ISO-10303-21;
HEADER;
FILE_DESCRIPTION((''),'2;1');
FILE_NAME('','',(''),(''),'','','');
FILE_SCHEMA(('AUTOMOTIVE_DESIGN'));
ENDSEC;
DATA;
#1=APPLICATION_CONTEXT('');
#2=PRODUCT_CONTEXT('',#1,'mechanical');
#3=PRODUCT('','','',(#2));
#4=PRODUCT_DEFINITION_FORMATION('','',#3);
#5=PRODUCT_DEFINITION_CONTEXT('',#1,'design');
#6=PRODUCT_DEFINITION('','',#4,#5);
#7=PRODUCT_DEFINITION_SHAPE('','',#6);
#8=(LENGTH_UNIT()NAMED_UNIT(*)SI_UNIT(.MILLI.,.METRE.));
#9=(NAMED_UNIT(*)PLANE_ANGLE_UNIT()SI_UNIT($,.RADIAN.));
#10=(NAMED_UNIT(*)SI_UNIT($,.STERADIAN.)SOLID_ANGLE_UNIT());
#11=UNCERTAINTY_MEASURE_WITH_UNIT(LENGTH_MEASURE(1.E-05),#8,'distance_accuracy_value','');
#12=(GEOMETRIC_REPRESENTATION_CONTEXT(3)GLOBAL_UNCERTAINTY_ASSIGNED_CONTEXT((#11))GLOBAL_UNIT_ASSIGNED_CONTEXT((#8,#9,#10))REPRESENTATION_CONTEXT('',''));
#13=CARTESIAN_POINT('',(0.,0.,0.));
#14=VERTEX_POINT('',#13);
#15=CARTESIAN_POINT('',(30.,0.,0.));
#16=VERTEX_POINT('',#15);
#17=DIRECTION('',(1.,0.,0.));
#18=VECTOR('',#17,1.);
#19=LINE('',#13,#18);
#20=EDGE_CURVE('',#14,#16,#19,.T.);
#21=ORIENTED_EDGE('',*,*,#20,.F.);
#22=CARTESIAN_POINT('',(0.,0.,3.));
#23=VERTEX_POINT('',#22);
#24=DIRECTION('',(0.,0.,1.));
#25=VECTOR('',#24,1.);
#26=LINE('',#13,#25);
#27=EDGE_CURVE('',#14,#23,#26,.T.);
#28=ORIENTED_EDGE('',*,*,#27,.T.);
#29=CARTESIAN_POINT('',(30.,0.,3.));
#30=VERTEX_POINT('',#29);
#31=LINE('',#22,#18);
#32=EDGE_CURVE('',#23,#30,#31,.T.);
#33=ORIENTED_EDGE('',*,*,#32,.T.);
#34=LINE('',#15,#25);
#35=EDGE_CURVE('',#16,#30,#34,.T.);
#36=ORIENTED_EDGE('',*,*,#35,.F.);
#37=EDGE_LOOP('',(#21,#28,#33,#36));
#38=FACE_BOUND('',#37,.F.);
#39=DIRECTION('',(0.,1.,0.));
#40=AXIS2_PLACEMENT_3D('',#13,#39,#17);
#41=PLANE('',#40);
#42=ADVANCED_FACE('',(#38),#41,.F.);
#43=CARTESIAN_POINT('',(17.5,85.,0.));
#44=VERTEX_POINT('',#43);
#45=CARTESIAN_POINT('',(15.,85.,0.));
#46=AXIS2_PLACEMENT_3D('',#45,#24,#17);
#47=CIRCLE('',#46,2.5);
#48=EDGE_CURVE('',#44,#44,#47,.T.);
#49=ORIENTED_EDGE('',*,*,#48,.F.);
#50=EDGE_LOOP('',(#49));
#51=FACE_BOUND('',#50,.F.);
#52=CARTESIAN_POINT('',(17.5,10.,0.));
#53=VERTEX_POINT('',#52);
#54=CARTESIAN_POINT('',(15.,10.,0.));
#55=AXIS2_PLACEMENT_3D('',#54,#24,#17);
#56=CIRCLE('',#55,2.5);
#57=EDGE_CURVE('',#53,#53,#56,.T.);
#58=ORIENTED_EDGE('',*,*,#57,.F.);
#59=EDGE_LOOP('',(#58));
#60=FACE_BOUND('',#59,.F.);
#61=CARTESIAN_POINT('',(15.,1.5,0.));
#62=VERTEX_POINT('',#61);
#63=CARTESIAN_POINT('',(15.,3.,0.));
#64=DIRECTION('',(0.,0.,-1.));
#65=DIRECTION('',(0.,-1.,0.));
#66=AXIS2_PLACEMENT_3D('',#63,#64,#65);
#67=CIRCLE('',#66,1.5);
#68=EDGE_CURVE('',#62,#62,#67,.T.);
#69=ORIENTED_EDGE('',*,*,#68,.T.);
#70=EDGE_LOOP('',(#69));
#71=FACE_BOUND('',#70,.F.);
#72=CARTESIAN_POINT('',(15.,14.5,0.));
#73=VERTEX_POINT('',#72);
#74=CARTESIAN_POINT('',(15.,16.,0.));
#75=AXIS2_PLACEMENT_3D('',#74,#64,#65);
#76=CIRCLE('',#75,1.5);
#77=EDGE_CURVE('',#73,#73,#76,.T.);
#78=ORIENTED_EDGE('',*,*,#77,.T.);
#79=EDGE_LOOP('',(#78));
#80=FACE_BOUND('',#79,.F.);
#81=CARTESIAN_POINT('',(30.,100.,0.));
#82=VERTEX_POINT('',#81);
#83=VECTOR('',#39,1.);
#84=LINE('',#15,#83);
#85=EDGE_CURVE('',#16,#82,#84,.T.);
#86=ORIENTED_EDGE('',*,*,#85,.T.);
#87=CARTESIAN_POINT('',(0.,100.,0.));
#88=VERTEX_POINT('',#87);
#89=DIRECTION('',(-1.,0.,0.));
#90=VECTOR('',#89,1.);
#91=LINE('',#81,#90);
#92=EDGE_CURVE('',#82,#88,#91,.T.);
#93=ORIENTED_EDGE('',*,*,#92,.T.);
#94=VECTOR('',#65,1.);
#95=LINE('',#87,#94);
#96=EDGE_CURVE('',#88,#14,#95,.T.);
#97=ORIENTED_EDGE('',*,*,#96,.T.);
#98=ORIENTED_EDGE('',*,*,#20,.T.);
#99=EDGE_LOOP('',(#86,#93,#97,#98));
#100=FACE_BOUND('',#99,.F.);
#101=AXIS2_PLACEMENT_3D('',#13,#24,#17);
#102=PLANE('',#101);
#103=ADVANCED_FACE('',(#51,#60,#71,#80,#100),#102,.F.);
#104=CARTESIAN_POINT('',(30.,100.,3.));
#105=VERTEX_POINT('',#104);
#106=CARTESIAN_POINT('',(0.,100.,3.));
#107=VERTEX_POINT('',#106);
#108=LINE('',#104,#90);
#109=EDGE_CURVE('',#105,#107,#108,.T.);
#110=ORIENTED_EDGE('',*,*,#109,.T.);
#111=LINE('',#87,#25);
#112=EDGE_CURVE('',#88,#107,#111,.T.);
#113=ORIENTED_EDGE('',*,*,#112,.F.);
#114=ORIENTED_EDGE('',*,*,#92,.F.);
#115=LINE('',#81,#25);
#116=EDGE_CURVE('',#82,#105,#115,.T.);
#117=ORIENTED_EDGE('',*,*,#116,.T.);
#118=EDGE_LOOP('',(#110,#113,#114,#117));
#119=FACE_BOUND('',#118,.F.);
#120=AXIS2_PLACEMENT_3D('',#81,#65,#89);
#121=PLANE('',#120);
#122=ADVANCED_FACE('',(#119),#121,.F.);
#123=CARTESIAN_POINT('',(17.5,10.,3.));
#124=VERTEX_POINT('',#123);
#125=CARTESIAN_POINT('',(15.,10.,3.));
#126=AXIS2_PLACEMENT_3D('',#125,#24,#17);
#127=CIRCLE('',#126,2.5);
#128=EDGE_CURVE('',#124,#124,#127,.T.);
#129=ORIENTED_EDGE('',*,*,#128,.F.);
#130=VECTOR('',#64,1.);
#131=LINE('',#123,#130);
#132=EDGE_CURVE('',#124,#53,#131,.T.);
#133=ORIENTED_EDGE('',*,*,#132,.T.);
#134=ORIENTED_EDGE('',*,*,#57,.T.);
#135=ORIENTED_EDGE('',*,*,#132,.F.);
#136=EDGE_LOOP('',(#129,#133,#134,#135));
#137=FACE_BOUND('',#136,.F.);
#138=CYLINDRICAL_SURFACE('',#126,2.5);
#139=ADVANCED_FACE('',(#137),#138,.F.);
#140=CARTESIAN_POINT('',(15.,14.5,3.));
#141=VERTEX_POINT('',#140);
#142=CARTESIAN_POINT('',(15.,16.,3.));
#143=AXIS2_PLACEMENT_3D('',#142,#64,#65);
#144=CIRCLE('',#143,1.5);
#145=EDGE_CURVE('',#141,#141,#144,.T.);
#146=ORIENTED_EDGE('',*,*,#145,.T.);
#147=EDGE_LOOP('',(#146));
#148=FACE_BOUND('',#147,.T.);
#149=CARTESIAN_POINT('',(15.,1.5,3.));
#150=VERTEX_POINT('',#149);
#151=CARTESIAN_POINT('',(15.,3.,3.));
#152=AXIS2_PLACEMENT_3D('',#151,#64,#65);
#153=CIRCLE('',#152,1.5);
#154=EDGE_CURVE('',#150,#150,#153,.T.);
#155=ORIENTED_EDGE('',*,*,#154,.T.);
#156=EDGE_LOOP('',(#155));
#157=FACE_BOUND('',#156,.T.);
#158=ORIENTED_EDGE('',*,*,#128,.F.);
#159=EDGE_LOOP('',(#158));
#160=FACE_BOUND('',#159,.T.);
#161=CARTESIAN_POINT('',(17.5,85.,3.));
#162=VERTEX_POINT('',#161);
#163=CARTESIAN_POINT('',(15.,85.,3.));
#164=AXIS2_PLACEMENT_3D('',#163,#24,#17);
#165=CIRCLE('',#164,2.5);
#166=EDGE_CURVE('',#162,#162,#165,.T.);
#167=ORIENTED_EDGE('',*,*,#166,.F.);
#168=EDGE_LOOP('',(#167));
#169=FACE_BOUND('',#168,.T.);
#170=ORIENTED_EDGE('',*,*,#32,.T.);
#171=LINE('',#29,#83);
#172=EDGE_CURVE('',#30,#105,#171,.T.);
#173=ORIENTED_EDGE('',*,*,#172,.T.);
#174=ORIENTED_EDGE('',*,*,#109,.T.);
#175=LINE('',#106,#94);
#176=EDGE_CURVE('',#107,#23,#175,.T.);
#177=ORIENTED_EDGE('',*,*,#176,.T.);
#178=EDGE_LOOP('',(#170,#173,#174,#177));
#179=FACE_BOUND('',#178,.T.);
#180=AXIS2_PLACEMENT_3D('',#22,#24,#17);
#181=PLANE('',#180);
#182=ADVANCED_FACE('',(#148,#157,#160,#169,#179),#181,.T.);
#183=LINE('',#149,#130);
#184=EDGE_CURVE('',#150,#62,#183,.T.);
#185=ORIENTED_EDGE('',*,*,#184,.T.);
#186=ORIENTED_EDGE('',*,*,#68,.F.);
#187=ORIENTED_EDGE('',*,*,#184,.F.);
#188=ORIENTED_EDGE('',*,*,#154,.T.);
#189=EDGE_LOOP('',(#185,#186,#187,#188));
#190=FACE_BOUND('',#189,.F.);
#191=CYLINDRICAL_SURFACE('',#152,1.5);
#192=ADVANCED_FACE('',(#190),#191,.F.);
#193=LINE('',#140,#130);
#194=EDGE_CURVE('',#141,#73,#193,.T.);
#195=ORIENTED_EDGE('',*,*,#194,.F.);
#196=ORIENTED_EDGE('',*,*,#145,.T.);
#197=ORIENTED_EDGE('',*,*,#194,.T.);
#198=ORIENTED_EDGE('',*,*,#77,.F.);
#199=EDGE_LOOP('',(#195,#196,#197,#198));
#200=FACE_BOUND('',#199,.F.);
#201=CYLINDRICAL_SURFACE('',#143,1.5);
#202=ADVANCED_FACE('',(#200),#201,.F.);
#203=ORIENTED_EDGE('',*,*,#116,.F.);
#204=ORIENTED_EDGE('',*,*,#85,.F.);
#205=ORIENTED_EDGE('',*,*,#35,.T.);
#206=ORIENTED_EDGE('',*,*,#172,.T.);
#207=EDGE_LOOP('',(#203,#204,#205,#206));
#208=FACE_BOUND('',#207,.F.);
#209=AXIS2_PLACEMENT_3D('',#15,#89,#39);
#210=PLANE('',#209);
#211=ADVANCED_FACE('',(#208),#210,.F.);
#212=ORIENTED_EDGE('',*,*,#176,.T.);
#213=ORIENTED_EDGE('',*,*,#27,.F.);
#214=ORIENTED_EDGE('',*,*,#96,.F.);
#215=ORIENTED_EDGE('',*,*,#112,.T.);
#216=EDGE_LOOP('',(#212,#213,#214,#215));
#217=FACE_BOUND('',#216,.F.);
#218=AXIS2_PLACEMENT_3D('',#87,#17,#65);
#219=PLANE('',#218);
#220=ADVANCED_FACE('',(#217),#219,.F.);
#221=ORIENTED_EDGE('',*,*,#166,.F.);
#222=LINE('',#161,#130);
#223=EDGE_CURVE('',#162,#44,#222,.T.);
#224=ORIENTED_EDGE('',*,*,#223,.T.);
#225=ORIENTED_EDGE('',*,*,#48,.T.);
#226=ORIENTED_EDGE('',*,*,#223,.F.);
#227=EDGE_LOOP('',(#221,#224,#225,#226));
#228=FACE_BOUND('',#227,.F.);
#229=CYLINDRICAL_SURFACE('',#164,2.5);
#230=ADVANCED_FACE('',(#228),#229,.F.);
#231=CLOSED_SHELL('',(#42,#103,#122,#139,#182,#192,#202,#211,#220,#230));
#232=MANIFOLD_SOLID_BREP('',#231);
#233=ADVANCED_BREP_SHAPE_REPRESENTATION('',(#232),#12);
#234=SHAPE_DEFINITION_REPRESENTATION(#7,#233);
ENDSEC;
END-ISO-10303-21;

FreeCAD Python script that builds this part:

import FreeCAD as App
import Part
import Sketcher

doc = App.newDocument("Part")
params = doc.addObject("Spreadsheet::Sheet", "Params")
for row, (alias, value) in enumerate([
    ("sketch1_width", "30 mm"),
    ("sketch1_height", "100 mm"),
    ("pad1_length", "3 mm"),
    ("sketch2_diameter", "5 mm"),
    ("pocket1_length", "10 mm"),
    ("sketch3_diameter", "5 mm"),
    ("pocket2_length", "10 mm"),
    ("sketch4_diameter", "3 mm"),
    ("hole_diameter", "3 mm"),
], start=1):
    params.set(f"A{row}", alias)
    params.set(f"B{row}", "=" + value)
    params.setAlias(f"B{row}", alias)

body = doc.addObject("PartDesign::Body", "Body")

# Sketch on XY plane
sketch1 = body.newObject("Sketcher::SketchObject", "Sketch")
sketch1.AttachmentSupport = (doc.getObject("XY_Plane"), [""])
sketch1.MapMode = "FlatFace"
sketch1.addGeometry([
    Part.LineSegment(App.Vector(0, 100, 0), App.Vector(0, 0, 0)),
    Part.LineSegment(App.Vector(0, 0, 0), App.Vector(30, 0, 0)),
    Part.LineSegment(App.Vector(30, 0, 0), App.Vector(30, 100, 0)),
    Part.LineSegment(App.Vector(30, 100, 0), App.Vector(0, 100, 0)),
], False)
sketch1.addConstraint([
    Sketcher.Constraint("Coincident", 0, 2, 1, 1),
    Sketcher.Constraint("Coincident", 1, 2, 2, 1),
    Sketcher.Constraint("Coincident", 2, 2, 3, 1),
    Sketcher.Constraint("Coincident", 3, 2, 0, 1),
    Sketcher.Constraint("Vertical", 0),
    Sketcher.Constraint("Horizontal", 1),
    Sketcher.Constraint("Vertical", 2),
    Sketcher.Constraint("Horizontal", 3),
    Sketcher.Constraint("Coincident", 0, 2, -1, 1),
    Sketcher.Constraint("DistanceX", 1, 1, 1, 2, 30.0),
    Sketcher.Constraint("DistanceY", 0, 2, 0, 1, 100.0),
])
sketch1.setExpression("Constraints[9]", "Params.sketch1_width")
sketch1.setExpression("Constraints[10]", "Params.sketch1_height")
pad1 = body.newObject("PartDesign::Pad", "Pad")
pad1.Profile = sketch1
pad1.setExpression("Length", "Params.pad1_length")

# Sketch on XY plane
sketch2 = body.newObject("Sketcher::SketchObject", "Sketch001")
sketch2.AttachmentSupport = (doc.getObject("XY_Plane"), [""])
sketch2.MapMode = "FlatFace"
sketch2.AttachmentOffset = App.Placement(App.Vector(0, 0, 3), App.Rotation())
sketch2.addGeometry(Part.Circle(App.Vector(15, 85, 0), App.Vector(0, 0, 1), 2.5), False)
sketch2.addConstraint([
    Sketcher.Constraint("Diameter", 0, 5.0),
    Sketcher.Constraint("DistanceX", -1, 1, 0, 3, 15.0),
    Sketcher.Constraint("DistanceY", -1, 1, 0, 3, 85.0),
])
sketch2.setExpression("Constraints[0]", "Params.sketch2_diameter")
pocket1 = body.newObject("PartDesign::Pocket", "Pocket")
pocket1.Profile = sketch2
pocket1.setExpression("Length", "Params.pocket1_length")

# Sketch on XY plane
sketch3 = body.newObject("Sketcher::SketchObject", "Sketch002")
sketch3.AttachmentSupport = (doc.getObject("XY_Plane"), [""])
sketch3.MapMode = "FlatFace"
sketch3.AttachmentOffset = App.Placement(App.Vector(0, 0, 3), App.Rotation())
sketch3.addGeometry(Part.Circle(App.Vector(15, 10, 0), App.Vector(0, 0, 1), 2.5), False)
sketch3.addConstraint([
    Sketcher.Constraint("Diameter", 0, 5.0),
    Sketcher.Constraint("DistanceX", -1, 1, 0, 3, 15.0),
    Sketcher.Constraint("DistanceY", -1, 1, 0, 3, 10.0),
])
sketch3.setExpression("Constraints[0]", "Params.sketch3_diameter")
pocket2 = body.newObject("PartDesign::Pocket", "Pocket001")
pocket2.Profile = sketch3
pocket2.setExpression("Length", "Params.pocket2_length")

# Sketch on XY plane
sketch4 = body.newObject("Sketcher::SketchObject", "Sketch003")
sketch4.AttachmentSupport = (doc.getObject("XY_Plane"), [""])
sketch4.MapMode = "FlatFace"
sketch4.AttachmentOffset = App.Placement(App.Vector(0, 0, 3), App.Rotation())
sketch4.addGeometry([
    Part.Circle(App.Vector(15, 16, 0), App.Vector(0, 0, 1), 1.5),
    Part.Circle(App.Vector(15, 3, 0), App.Vector(0, 0, 1), 1.5),
], False)
sketch4.addConstraint([
    Sketcher.Constraint("Equal", 0, 1),
    Sketcher.Constraint("Vertical", 0, 3, 1, 3),
    Sketcher.Constraint("Diameter", 0, 3.0),
    Sketcher.Constraint("DistanceX", -1, 1, 0, 3, 15.0),
    Sketcher.Constraint("DistanceY", -1, 1, 0, 3, 16.0),
    Sketcher.Constraint("DistanceY", -1, 1, 1, 3, 3.0),
])
sketch4.setExpression("Constraints[2]", "Params.sketch4_diameter")
doc.recompute()
hole = body.newObject("PartDesign::Hole", "Hole")
hole.Profile = sketch4
hole.ThreadType = "None"
hole.setExpression("Diameter", "Params.hole_diameter")
hole.DepthType = "ThroughAll"

doc.recompute()
